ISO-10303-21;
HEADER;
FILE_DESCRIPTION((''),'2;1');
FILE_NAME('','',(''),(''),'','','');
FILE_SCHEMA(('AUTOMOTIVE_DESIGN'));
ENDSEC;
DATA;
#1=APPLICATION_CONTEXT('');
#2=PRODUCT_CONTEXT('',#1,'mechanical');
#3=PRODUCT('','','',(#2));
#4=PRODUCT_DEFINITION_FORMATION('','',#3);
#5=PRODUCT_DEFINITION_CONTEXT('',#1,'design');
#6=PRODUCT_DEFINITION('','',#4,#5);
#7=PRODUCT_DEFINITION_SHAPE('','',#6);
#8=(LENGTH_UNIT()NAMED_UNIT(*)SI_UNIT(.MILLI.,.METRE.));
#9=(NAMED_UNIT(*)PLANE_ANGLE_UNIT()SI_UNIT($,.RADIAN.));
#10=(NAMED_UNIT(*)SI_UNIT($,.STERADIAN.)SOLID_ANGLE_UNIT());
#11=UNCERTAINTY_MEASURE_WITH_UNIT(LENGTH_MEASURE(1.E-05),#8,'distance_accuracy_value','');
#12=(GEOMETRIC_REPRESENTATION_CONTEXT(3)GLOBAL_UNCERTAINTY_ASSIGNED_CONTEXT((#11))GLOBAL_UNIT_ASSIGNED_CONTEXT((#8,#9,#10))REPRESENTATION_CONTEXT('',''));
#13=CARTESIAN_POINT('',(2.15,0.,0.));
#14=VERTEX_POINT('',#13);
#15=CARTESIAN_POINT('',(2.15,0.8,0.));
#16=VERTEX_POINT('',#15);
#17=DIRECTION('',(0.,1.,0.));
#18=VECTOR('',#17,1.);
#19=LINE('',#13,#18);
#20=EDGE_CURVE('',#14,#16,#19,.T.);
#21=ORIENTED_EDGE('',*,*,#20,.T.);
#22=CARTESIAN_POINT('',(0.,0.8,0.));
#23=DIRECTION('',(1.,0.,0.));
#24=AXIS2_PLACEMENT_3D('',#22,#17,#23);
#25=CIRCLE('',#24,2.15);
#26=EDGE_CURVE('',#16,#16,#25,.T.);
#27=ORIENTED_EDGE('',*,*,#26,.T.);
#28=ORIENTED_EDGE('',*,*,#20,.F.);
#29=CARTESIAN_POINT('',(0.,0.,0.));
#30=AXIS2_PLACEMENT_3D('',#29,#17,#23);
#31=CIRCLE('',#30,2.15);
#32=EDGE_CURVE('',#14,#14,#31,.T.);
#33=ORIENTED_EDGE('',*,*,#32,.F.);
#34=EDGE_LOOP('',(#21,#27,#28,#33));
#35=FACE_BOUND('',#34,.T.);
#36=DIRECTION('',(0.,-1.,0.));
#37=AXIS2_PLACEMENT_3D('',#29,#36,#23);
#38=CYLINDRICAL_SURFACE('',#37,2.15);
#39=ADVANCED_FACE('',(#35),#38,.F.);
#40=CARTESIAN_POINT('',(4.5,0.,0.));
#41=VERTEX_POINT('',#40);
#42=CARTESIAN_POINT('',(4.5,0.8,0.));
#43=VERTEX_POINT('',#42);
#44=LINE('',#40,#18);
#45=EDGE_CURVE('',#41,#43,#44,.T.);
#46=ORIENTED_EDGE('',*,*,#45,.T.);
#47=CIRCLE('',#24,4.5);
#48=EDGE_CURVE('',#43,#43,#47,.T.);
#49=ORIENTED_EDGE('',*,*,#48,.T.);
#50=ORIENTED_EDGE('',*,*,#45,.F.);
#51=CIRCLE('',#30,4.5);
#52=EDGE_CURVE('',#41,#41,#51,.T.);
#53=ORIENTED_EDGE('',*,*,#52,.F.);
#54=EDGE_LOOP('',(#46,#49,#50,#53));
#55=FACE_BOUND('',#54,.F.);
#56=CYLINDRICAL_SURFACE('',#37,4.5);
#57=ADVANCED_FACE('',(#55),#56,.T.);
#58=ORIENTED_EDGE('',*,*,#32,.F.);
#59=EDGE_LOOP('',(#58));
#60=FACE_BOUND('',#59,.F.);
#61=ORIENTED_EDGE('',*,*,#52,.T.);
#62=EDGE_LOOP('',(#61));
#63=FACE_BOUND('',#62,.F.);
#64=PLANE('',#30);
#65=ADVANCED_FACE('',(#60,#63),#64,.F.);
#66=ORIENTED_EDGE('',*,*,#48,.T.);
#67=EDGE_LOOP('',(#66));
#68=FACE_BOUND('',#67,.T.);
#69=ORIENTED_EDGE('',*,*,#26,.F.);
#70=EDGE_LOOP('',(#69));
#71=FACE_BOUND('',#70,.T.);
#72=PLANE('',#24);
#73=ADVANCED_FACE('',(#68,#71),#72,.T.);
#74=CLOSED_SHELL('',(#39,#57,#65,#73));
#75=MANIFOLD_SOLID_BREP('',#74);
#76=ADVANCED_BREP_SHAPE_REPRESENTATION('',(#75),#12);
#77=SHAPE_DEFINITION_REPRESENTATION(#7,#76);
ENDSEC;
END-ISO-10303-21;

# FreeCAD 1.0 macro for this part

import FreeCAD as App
import Part
import Sketcher
from FreeCAD import Vector
Q = App.Units.Quantity

doc = App.newDocument("Part")
params = doc.addObject("Spreadsheet::Sheet", "Params")
for row, (alias, value) in enumerate([
    ("sketch1_diameter", "9 mm"),
    ("sketch1_diameter2", "4.3 mm"),
    ("pad1_length", "0.8 mm"),
], start=1):
    params.set(f"A{row}", alias)
    params.set(f"B{row}", "=" + value)
    params.setAlias(f"B{row}", alias)

body = doc.addObject("PartDesign::Body", "Body")

# Sketch on XZ plane
sketch1 = body.newObject("Sketcher::SketchObject", "Sketch")
sketch1.AttachmentSupport = (doc.getObject("XZ_Plane"), [""])
sketch1.MapMode = "FlatFace"
sketch1.addGeometry(Part.Circle(Vector(0, 0, 0), Vector(0, 0, 1), 4.5), False)
sketch1.addGeometry(Part.Circle(Vector(0, 0, 0), Vector(0, 0, 1), 2.1), False)
sketch1.addConstraint(Sketcher.Constraint("Coincident", 0, 3, -1, 1))
sketch1.addConstraint(Sketcher.Constraint("Coincident", 1, 3, -1, 1))
sketch1.addConstraint(Sketcher.Constraint("Diameter", 0, Q("9 mm")))
sketch1.addConstraint(Sketcher.Constraint("Diameter", 1, Q("4.3 mm")))
sketch1.setExpression("Constraints[2]", "Params.sketch1_diameter")
sketch1.setExpression("Constraints[3]", "Params.sketch1_diameter2")
pad1 = body.newObject("PartDesign::Pad", "Pad")
pad1.Profile = sketch1
pad1.setExpression("Length", "Params.pad1_length")
pad1.Reversed = True

doc.recompute()
